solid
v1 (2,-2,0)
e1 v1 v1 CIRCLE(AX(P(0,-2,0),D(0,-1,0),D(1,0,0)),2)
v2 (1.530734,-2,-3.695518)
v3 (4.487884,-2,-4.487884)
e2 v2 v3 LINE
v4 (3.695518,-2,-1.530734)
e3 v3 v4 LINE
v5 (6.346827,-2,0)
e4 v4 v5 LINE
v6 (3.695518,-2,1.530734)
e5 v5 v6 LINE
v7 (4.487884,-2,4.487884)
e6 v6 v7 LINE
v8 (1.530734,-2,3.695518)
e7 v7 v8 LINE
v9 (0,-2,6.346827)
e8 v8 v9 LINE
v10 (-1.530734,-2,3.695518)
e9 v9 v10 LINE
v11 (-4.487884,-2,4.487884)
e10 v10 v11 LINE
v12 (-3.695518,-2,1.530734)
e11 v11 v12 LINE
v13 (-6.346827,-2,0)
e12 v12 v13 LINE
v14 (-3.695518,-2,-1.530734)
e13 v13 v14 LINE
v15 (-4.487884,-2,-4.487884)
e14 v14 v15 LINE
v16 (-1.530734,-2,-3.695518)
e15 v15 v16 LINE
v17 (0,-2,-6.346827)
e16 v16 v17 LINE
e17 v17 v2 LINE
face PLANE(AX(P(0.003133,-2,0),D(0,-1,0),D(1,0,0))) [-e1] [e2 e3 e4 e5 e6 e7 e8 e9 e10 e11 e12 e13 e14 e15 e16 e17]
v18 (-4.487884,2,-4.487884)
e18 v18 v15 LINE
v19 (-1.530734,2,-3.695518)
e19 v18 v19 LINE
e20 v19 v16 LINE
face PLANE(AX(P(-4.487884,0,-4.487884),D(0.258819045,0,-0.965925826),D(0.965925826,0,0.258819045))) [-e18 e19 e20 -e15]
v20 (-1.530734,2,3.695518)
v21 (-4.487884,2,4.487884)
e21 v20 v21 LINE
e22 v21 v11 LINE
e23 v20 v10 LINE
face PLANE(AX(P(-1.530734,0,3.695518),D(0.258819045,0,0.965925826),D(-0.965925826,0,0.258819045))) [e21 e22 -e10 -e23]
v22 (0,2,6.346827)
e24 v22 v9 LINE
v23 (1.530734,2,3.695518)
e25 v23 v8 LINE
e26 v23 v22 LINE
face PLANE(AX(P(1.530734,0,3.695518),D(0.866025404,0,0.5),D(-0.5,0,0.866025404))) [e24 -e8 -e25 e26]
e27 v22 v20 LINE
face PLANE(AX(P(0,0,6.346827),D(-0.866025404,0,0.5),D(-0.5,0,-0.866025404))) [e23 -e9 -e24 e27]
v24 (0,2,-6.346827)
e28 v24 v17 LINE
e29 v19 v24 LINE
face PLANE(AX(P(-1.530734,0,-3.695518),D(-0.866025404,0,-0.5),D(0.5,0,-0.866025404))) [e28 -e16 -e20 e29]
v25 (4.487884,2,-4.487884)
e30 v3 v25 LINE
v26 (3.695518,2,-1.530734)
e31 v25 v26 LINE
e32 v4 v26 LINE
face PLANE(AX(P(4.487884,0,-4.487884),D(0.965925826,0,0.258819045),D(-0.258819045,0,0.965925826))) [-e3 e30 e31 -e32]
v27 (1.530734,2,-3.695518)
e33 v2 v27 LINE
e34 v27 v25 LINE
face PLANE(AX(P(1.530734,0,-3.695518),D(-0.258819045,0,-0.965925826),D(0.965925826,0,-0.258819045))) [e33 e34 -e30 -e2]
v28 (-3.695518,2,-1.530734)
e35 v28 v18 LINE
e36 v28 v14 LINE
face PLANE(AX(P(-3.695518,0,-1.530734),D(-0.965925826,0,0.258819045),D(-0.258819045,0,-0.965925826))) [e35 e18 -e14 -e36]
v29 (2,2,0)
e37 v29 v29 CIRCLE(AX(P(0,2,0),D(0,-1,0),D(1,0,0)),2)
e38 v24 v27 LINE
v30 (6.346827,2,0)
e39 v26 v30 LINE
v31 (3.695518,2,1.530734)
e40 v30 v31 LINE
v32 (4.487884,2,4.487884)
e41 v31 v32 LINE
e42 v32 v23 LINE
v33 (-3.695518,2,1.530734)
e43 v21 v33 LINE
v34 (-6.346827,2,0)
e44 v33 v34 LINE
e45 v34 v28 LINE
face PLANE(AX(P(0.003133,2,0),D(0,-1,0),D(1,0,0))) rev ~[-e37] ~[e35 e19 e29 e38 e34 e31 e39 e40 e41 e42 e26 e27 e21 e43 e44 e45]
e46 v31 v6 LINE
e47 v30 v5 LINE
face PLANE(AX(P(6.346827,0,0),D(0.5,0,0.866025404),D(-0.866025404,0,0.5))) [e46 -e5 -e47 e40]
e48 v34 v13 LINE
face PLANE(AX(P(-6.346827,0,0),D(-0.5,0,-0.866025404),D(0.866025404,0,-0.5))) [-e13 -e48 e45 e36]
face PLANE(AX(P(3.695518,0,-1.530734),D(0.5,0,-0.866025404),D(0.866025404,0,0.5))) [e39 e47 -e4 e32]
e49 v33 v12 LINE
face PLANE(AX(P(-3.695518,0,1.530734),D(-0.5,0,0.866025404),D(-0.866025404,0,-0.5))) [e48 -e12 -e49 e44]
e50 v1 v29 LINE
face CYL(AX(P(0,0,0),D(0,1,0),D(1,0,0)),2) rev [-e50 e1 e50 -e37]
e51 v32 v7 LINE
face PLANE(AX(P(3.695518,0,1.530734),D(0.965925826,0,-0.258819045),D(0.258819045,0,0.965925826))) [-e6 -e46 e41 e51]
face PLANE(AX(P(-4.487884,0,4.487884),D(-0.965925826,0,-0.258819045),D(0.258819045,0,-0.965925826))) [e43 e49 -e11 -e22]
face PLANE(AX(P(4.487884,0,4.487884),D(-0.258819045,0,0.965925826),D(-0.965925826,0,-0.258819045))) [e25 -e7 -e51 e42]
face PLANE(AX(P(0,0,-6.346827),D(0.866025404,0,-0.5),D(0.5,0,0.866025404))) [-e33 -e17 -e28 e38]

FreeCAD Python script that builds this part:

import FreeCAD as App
import Part
import Sketcher
from FreeCAD import Vector
Q = App.Units.Quantity


def add_polygon(sketch, points):
    """Adds a closed chain of lines whose ends are joined by coincident constraints."""
    first, n = sketch.GeometryCount, len(points)
    for a, b in zip(points, points[1:] + points[:1]):
        sketch.addGeometry(Part.LineSegment(App.Vector(*a, 0), App.Vector(*b, 0)), False)
    for i in range(n):
        sketch.addConstraint(Sketcher.Constraint("Coincident", first + i, 2, first + (i + 1) % n, 1))

doc = App.newDocument("Part")
params = doc.addObject("Spreadsheet::Sheet", "Params")
for row, (alias, value) in enumerate([
    ("sketch1_diameter", "4 mm"),
    ("pad1_length", "4 mm"),
], start=1):
    params.set(f"A{row}", alias)
    params.set(f"B{row}", "=" + value)
    params.setAlias(f"B{row}", alias)

body = doc.addObject("PartDesign::Body", "Body")

# Sketch on XZ plane
sketch1 = doc.addObject("Sketcher::SketchObject", "Sketch")
body.addObject(sketch1)
sketch1.AttachmentSupport = (doc.XZ_Plane, [""])
sketch1.MapMode = "FlatFace"
add_polygon(sketch1, [(3.7, -1.5), (6.3, 0), (3.7, 1.5), (4.5, 4.5), (1.5, 3.7), (0, 6.3), (-1.5, 3.7), (-4.5, 4.5), (-3.7, 1.5), (-6.3, 0), (-3.7, -1.5), (-4.5, -4.5), (-1.5, -3.7), (0, -6.3), (1.5, -3.7), (4.5, -4.5)])  # lines 0-15
sketch1.addGeometry(Part.Circle(Vector(0, 0, 0), Vector(0, 0, 1), 2), False)  # 16
sketch1.addConstraint([
    Sketcher.Constraint("Coincident", 16, 3, -1, 1),
    Sketcher.Constraint("Symmetric", 0, 2, 8, 2, -1, 1),
    Sketcher.Constraint("Symmetric", 1, 2, 9, 2, -1, 1),
    Sketcher.Constraint("Symmetric", 2, 2, 10, 2, -1, 1),
    Sketcher.Constraint("Symmetric", 3, 2, 11, 2, -1, 1),
    Sketcher.Constraint("Symmetric", 4, 2, 12, 2, -1, 1),
    Sketcher.Constraint("Symmetric", 5, 2, 13, 2, -1, 1),
    Sketcher.Constraint("Symmetric", 6, 2, 14, 2, -1, 1),
    Sketcher.Constraint("Symmetric", 7, 2, 15, 2, -1, 1),
    Sketcher.Constraint("Symmetric", 3, 2, 5, 2, -2),
    Sketcher.Constraint("Symmetric", 2, 2, 6, 2, -2),
    Sketcher.Constraint("Symmetric", 1, 2, 7, 2, -2),
    Sketcher.Constraint("PointOnObject", 0, 2, -1),
    Sketcher.Constraint("PointOnObject", 4, 2, -2),
    Sketcher.Constraint("Perpendicular", 0, 4),
    Sketcher.Constraint("Perpendicular", 2, 6),
    Sketcher.Constraint("Equal", 1, 2),
    Sketcher.Constraint("Equal", 2, 3),
    Sketcher.Constraint("Equal", 3, 4),
    Sketcher.Constraint("Diameter", 16, 4.0),
    Sketcher.Constraint("Angle", 0, Q("30 deg")),
    Sketcher.Constraint("Angle", 2, Q("75 deg")),
    Sketcher.Constraint("DistanceX", -1, 1, 1, 2, 3.695518),
])
sketch1.setExpression("Constraints[35]", "Params.sketch1_diameter")
pad1 = doc.addObject("PartDesign::Pad", "Pad")
body.addObject(pad1)
pad1.Profile = sketch1
pad1.setExpression("Length", "Params.pad1_length")
pad1.Midplane = True

doc.recompute()
